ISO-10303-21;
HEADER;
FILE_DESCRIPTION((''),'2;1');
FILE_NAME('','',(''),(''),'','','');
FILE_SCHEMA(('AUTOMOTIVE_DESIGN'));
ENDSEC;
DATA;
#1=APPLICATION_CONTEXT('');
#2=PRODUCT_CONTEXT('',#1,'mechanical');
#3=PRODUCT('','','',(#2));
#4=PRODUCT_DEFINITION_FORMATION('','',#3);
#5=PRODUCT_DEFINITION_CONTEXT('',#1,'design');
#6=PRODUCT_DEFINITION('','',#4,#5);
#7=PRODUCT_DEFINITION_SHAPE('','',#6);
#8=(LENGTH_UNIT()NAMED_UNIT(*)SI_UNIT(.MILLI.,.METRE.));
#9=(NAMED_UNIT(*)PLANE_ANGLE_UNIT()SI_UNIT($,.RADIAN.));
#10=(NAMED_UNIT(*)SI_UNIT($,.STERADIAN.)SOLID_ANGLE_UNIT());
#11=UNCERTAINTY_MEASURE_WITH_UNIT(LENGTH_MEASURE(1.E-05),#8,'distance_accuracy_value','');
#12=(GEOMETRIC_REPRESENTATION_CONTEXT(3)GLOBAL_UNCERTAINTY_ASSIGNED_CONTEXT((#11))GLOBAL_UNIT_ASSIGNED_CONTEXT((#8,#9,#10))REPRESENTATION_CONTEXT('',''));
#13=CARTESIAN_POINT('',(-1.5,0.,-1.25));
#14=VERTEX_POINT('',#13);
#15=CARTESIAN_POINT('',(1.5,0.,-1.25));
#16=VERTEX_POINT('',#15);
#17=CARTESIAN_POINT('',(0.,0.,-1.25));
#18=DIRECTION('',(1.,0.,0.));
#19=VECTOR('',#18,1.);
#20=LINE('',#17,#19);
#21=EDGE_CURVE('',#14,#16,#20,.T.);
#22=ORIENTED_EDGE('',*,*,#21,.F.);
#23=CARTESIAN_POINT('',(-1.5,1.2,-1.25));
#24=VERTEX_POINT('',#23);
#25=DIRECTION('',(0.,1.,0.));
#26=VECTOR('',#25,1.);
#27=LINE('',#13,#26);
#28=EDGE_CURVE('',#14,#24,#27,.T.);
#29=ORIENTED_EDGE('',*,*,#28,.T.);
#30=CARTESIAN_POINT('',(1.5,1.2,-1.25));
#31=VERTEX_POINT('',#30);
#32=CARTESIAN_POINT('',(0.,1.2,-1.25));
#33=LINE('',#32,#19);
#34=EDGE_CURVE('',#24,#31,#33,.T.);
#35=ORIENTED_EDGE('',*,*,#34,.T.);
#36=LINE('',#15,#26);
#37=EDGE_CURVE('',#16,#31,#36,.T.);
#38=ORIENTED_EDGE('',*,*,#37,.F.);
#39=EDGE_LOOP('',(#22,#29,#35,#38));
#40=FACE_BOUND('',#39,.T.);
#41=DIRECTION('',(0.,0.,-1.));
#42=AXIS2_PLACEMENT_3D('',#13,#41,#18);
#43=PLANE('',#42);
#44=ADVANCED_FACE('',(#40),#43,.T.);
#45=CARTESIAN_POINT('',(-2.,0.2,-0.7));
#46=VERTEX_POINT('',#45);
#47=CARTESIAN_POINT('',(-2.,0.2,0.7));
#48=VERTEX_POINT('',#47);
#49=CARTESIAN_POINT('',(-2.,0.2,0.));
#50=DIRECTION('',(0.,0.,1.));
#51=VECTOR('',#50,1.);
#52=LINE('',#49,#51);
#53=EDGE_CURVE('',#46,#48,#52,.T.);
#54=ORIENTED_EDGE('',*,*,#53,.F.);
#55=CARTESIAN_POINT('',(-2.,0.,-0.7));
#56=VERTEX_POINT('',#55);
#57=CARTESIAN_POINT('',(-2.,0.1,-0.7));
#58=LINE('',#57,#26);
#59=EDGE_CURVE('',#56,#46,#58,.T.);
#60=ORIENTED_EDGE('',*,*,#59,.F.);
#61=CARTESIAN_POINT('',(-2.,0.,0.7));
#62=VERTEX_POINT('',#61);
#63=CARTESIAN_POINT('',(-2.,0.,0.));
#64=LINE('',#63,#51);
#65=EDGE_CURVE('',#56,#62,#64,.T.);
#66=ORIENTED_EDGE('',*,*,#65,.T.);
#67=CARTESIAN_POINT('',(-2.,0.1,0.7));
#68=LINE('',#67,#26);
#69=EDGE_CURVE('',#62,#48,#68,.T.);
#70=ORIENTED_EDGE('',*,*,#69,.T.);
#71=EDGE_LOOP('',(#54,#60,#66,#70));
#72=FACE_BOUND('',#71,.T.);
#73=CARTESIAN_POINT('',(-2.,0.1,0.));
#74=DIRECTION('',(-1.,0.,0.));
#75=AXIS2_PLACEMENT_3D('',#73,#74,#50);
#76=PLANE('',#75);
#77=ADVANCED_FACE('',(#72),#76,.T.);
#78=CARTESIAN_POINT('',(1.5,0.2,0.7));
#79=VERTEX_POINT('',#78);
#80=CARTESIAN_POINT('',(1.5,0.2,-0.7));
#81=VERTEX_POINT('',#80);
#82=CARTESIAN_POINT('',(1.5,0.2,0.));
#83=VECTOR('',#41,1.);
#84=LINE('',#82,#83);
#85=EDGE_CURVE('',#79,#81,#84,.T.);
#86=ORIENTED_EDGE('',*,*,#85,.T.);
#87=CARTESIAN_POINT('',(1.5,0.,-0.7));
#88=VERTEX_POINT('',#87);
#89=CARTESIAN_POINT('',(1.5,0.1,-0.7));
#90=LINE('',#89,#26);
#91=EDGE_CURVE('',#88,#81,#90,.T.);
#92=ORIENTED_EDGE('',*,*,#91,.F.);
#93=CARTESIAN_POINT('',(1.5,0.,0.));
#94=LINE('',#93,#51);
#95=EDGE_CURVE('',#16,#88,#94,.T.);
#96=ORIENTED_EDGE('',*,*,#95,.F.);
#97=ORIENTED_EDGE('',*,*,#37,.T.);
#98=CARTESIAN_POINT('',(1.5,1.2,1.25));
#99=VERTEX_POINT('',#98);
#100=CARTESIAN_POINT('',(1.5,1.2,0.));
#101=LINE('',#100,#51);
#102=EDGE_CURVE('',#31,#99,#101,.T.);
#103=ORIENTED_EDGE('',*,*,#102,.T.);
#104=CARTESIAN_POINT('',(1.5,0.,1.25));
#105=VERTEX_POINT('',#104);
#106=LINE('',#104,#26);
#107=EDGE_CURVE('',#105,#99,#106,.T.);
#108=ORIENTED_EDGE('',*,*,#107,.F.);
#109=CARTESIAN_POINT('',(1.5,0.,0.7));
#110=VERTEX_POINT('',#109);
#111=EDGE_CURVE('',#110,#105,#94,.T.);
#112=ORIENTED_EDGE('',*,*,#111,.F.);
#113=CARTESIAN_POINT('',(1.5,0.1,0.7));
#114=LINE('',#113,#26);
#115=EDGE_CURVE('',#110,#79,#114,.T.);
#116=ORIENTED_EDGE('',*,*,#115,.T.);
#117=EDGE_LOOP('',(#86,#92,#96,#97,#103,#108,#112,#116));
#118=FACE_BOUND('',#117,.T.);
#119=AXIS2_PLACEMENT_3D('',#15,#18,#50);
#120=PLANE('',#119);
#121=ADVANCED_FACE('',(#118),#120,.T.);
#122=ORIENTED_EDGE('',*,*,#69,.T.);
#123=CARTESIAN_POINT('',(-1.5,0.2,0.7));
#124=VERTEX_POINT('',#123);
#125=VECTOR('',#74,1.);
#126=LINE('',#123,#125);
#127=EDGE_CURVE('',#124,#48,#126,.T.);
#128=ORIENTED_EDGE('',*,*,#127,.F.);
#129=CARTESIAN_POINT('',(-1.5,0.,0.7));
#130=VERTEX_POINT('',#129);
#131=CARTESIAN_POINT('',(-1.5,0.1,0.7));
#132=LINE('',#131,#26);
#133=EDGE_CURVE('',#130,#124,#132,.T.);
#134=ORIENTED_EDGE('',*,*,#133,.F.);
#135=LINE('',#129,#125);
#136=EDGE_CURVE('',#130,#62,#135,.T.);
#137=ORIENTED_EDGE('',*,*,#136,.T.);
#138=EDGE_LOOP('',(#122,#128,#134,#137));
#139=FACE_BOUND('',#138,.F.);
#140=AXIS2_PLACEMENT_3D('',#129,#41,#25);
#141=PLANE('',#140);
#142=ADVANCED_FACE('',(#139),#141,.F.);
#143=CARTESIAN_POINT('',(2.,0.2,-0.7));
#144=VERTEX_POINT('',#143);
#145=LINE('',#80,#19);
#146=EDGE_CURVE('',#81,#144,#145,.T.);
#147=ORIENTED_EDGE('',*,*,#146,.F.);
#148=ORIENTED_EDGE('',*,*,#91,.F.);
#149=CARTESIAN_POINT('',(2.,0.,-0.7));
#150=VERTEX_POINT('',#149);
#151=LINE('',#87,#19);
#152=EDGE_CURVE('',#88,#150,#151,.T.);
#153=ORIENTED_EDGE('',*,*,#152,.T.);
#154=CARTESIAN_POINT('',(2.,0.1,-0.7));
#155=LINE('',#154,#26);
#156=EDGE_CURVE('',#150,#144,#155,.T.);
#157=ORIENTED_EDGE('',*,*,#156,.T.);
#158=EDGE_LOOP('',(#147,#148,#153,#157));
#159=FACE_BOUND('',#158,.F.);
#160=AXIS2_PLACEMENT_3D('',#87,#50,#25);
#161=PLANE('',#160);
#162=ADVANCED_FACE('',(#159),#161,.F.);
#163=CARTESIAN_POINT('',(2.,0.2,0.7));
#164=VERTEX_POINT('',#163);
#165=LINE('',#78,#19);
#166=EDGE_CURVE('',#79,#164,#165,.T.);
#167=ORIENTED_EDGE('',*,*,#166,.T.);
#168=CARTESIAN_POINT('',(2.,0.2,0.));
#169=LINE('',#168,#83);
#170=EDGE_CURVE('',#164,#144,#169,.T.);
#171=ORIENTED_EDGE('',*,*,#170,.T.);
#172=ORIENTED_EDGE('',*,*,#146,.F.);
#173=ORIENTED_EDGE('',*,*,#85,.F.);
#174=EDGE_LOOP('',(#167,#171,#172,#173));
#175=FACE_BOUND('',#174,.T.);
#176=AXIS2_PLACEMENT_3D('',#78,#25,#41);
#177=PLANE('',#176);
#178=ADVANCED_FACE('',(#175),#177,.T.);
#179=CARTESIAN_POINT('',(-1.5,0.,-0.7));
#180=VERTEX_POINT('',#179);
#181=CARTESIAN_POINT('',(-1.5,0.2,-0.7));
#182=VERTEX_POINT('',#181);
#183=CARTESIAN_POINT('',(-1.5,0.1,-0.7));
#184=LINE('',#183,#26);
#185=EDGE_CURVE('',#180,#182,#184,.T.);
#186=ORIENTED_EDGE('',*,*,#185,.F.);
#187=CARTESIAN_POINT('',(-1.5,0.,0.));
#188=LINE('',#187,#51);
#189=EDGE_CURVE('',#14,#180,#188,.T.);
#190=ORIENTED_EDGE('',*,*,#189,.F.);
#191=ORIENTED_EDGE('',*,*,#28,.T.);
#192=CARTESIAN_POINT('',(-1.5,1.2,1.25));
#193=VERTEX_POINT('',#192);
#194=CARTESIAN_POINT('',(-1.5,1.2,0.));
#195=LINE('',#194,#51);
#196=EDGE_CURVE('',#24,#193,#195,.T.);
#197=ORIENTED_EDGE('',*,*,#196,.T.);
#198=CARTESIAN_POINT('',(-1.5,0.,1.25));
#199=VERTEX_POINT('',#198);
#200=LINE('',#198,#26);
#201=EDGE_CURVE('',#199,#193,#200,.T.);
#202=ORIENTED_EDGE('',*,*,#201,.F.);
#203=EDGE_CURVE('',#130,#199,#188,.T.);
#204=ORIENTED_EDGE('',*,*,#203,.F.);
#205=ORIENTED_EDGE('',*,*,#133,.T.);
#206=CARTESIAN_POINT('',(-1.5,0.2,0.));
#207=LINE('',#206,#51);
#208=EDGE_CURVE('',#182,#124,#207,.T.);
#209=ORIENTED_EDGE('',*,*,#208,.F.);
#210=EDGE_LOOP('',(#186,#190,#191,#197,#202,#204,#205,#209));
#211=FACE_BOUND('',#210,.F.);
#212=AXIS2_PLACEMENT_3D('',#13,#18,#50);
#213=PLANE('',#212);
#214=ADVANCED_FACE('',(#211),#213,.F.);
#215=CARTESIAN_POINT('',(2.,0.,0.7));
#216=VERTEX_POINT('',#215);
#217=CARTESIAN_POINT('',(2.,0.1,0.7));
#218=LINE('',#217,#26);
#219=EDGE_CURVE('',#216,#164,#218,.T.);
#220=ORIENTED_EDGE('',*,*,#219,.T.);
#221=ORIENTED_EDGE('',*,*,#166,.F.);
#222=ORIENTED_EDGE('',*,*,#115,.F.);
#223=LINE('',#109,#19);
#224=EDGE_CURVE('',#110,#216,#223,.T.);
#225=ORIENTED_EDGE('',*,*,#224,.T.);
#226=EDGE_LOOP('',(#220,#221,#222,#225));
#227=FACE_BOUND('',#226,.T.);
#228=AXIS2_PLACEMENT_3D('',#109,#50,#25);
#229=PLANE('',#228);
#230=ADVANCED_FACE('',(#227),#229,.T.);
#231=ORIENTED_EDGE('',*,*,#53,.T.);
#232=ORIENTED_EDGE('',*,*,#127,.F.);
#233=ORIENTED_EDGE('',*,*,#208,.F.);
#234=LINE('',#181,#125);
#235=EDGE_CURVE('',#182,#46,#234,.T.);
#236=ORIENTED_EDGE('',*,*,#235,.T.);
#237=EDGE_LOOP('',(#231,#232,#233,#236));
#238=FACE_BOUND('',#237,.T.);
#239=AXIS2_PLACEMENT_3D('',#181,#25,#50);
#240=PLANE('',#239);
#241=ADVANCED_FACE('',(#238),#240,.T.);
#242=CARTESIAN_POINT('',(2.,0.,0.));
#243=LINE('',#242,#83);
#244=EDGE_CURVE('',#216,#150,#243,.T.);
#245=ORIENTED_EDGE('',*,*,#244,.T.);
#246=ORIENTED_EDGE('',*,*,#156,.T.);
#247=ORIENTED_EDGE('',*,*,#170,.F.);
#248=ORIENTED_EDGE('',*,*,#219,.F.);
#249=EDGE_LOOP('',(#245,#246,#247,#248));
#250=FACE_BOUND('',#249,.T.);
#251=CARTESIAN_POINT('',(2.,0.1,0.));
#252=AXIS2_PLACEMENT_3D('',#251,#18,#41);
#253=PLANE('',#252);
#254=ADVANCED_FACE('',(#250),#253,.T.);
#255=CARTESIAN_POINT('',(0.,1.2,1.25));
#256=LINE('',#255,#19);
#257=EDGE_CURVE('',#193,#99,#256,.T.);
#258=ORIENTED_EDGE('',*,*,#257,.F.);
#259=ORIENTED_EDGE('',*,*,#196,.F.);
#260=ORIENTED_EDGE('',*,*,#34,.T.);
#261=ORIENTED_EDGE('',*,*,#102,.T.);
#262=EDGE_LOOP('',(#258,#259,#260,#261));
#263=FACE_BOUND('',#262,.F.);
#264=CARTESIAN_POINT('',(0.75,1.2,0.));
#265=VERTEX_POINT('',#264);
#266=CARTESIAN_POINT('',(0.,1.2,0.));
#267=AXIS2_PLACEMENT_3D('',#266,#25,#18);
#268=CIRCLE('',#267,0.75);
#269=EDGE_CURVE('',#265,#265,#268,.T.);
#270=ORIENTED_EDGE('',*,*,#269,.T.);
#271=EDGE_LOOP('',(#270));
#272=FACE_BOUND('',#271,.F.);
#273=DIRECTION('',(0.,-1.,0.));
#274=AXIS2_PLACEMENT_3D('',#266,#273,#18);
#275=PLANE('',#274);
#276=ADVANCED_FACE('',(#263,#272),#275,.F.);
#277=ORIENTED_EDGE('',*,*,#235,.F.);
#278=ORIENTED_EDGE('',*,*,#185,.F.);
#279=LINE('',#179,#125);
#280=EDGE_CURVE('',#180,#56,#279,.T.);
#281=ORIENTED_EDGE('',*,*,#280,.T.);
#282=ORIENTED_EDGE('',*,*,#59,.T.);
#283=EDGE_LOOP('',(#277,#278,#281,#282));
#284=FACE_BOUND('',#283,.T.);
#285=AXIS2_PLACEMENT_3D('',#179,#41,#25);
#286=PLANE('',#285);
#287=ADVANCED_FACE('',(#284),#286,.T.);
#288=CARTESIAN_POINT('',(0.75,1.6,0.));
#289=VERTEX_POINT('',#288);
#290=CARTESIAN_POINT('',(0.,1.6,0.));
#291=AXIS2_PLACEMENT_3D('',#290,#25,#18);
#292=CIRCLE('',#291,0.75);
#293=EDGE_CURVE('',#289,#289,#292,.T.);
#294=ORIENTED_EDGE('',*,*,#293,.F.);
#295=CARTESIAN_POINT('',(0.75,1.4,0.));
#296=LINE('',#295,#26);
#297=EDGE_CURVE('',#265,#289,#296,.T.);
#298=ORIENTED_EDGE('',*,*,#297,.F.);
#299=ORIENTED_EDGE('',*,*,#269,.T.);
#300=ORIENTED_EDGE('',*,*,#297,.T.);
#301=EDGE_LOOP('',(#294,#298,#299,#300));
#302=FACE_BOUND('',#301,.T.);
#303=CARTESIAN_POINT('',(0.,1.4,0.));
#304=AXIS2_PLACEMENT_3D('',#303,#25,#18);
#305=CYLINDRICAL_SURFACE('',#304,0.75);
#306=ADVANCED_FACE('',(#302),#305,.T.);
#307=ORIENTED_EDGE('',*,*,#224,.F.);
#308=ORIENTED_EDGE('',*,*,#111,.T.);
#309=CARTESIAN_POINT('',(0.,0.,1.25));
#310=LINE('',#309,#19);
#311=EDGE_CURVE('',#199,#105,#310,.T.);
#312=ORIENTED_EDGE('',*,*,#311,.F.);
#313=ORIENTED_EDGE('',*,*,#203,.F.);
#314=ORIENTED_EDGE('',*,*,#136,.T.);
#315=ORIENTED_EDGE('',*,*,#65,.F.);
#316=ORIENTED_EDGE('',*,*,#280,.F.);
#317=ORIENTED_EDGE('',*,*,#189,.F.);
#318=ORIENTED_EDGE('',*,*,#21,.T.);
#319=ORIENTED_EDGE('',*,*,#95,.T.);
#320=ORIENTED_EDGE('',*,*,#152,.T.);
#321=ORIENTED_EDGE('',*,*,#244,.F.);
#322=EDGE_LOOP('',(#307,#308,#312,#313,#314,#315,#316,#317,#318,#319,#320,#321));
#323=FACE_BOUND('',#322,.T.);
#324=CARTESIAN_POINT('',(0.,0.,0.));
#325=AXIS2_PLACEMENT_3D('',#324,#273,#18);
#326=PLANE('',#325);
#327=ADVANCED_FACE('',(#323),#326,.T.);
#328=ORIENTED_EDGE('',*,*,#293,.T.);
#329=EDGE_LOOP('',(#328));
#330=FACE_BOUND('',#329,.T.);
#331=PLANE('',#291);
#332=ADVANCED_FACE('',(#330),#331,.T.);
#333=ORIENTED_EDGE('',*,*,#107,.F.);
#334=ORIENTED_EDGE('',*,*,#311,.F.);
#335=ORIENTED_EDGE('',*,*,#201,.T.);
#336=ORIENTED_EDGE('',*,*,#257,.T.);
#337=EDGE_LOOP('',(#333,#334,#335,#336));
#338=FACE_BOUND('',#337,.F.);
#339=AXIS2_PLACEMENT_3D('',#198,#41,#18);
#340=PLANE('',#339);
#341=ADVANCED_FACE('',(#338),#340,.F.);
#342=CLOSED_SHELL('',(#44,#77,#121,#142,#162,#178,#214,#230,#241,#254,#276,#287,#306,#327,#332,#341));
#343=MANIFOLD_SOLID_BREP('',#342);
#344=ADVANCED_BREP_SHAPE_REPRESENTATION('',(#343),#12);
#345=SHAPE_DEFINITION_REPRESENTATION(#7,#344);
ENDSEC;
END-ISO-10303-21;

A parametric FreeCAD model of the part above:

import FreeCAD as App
import Part
import Sketcher


def add_polygon(sketch, points):
    """Adds a closed chain of lines whose ends are joined by coincident constraints."""
    first, n = sketch.GeometryCount, len(points)
    for a, b in zip(points, points[1:] + points[:1]):
        sketch.addGeometry(Part.LineSegment(App.Vector(*a, 0), App.Vector(*b, 0)), False)
    for i in range(n):
        sketch.addConstraint(Sketcher.Constraint("Coincident", first + i, 2, first + (i + 1) % n, 1))

doc = App.newDocument("Part")
body = doc.addObject("PartDesign::Body", "Body")

sketch1 = doc.addObject("Sketcher::SketchObject", "Sketch")
body.addObject(sketch1)
sketch1.AttachmentSupport = (doc.XZ_Plane, [""])
sketch1.MapMode = "FlatFace"
add_polygon(sketch1, [(-1.5, 1.25), (-1.5, -1.25), (1.5, -1.25), (1.5, 1.25)])
sketch1.addConstraint([
    Sketcher.Constraint("Vertical", 0),
    Sketcher.Constraint("Horizontal", 1),
    Sketcher.Constraint("Vertical", 2),
    Sketcher.Constraint("Horizontal", 3),
    Sketcher.Constraint("Symmetric", 0, 2, 2, 2, -1, 1),
    Sketcher.Constraint("DistanceX", 1, 1, 1, 2, 3.0),
    Sketcher.Constraint("DistanceY", 0, 2, 0, 1, 2.5),
])
pad1 = doc.addObject("PartDesign::Pad", "Pad")
body.addObject(pad1)
pad1.Profile = sketch1
pad1.Length = 1.2
pad1.Reversed = True

sketch2 = doc.addObject("Sketcher::SketchObject", "Sketch001")
body.addObject(sketch2)
sketch2.AttachmentSupport = (doc.YZ_Plane, [""])
sketch2.MapMode = "FlatFace"
sketch2.AttachmentOffset = App.Placement(App.Vector(0, 0, 1.5), App.Rotation())
add_polygon(sketch2, [(0.2, 0.7), (0, 0.7), (0, -0.7), (0.2, -0.7)])
sketch2.addConstraint([
    Sketcher.Constraint("Horizontal", 0),
    Sketcher.Constraint("Vertical", 1),
    Sketcher.Constraint("Horizontal", 2),
    Sketcher.Constraint("Vertical", 3),
    Sketcher.Constraint("Symmetric", 0, 2, 1, 2, -1, 1),
    Sketcher.Constraint("DistanceX", 0, 2, 0, 1, 0.2),
    Sketcher.Constraint("DistanceY", 1, 2, 1, 1, 1.4),
])
pad2 = doc.addObject("PartDesign::Pad", "Pad001")
body.addObject(pad2)
pad2.Profile = sketch2
pad2.Length = 0.5

sketch3 = doc.addObject("Sketcher::SketchObject", "Sketch002")
body.addObject(sketch3)
sketch3.AttachmentSupport = (doc.YZ_Plane, [""])
sketch3.MapMode = "FlatFace"
sketch3.AttachmentOffset = App.Placement(App.Vector(0, 0, -1.5), App.Rotation())
add_polygon(sketch3, [(0.2, -0.7), (0, -0.7), (0, 0.7), (0.2, 0.7)])
sketch3.addConstraint([
    Sketcher.Constraint("Horizontal", 0),
    Sketcher.Constraint("Vertical", 1),
    Sketcher.Constraint("Horizontal", 2),
    Sketcher.Constraint("Vertical", 3),
    Sketcher.Constraint("Symmetric", 0, 2, 1, 2, -1, 1),
    Sketcher.Constraint("DistanceX", 0, 2, 0, 1, 0.2),
    Sketcher.Constraint("DistanceY", 1, 1, 1, 2, 1.4),
])
pad3 = doc.addObject("PartDesign::Pad", "Pad002")
body.addObject(pad3)
pad3.Profile = sketch3
pad3.Length = 0.5
pad3.Reversed = True

sketch4 = doc.addObject("Sketcher::SketchObject", "Sketch003")
body.addObject(sketch4)
sketch4.AttachmentSupport = (doc.XY_Plane, [""])
sketch4.MapMode = "FlatFace"
add_polygon(sketch4, [(0.75, 1.6), (0.75, 1.2), (0, 1.2), (0, 1.6)])
sketch4.addConstraint([
    Sketcher.Constraint("Vertical", 0),
    Sketcher.Constraint("Horizontal", 1),
    Sketcher.Constraint("Vertical", 2),
    Sketcher.Constraint("Horizontal", 3),
    Sketcher.Constraint("PointOnObject", 1, 2, -2),
    Sketcher.Constraint("DistanceY", 0, 2, 0, 1, 0.4),
    Sketcher.Constraint("DistanceX", 1, 2, 1, 1, 0.75),
    Sketcher.Constraint("DistanceY", -1, 1, 0, 2, 1.2),
])
revolution = doc.addObject("PartDesign::Revolution", "Revolution")
body.addObject(revolution)
revolution.Profile = sketch4
revolution.ReferenceAxis = (sketch4, ["V_Axis"])
revolution.Angle = 360

doc.recompute()
